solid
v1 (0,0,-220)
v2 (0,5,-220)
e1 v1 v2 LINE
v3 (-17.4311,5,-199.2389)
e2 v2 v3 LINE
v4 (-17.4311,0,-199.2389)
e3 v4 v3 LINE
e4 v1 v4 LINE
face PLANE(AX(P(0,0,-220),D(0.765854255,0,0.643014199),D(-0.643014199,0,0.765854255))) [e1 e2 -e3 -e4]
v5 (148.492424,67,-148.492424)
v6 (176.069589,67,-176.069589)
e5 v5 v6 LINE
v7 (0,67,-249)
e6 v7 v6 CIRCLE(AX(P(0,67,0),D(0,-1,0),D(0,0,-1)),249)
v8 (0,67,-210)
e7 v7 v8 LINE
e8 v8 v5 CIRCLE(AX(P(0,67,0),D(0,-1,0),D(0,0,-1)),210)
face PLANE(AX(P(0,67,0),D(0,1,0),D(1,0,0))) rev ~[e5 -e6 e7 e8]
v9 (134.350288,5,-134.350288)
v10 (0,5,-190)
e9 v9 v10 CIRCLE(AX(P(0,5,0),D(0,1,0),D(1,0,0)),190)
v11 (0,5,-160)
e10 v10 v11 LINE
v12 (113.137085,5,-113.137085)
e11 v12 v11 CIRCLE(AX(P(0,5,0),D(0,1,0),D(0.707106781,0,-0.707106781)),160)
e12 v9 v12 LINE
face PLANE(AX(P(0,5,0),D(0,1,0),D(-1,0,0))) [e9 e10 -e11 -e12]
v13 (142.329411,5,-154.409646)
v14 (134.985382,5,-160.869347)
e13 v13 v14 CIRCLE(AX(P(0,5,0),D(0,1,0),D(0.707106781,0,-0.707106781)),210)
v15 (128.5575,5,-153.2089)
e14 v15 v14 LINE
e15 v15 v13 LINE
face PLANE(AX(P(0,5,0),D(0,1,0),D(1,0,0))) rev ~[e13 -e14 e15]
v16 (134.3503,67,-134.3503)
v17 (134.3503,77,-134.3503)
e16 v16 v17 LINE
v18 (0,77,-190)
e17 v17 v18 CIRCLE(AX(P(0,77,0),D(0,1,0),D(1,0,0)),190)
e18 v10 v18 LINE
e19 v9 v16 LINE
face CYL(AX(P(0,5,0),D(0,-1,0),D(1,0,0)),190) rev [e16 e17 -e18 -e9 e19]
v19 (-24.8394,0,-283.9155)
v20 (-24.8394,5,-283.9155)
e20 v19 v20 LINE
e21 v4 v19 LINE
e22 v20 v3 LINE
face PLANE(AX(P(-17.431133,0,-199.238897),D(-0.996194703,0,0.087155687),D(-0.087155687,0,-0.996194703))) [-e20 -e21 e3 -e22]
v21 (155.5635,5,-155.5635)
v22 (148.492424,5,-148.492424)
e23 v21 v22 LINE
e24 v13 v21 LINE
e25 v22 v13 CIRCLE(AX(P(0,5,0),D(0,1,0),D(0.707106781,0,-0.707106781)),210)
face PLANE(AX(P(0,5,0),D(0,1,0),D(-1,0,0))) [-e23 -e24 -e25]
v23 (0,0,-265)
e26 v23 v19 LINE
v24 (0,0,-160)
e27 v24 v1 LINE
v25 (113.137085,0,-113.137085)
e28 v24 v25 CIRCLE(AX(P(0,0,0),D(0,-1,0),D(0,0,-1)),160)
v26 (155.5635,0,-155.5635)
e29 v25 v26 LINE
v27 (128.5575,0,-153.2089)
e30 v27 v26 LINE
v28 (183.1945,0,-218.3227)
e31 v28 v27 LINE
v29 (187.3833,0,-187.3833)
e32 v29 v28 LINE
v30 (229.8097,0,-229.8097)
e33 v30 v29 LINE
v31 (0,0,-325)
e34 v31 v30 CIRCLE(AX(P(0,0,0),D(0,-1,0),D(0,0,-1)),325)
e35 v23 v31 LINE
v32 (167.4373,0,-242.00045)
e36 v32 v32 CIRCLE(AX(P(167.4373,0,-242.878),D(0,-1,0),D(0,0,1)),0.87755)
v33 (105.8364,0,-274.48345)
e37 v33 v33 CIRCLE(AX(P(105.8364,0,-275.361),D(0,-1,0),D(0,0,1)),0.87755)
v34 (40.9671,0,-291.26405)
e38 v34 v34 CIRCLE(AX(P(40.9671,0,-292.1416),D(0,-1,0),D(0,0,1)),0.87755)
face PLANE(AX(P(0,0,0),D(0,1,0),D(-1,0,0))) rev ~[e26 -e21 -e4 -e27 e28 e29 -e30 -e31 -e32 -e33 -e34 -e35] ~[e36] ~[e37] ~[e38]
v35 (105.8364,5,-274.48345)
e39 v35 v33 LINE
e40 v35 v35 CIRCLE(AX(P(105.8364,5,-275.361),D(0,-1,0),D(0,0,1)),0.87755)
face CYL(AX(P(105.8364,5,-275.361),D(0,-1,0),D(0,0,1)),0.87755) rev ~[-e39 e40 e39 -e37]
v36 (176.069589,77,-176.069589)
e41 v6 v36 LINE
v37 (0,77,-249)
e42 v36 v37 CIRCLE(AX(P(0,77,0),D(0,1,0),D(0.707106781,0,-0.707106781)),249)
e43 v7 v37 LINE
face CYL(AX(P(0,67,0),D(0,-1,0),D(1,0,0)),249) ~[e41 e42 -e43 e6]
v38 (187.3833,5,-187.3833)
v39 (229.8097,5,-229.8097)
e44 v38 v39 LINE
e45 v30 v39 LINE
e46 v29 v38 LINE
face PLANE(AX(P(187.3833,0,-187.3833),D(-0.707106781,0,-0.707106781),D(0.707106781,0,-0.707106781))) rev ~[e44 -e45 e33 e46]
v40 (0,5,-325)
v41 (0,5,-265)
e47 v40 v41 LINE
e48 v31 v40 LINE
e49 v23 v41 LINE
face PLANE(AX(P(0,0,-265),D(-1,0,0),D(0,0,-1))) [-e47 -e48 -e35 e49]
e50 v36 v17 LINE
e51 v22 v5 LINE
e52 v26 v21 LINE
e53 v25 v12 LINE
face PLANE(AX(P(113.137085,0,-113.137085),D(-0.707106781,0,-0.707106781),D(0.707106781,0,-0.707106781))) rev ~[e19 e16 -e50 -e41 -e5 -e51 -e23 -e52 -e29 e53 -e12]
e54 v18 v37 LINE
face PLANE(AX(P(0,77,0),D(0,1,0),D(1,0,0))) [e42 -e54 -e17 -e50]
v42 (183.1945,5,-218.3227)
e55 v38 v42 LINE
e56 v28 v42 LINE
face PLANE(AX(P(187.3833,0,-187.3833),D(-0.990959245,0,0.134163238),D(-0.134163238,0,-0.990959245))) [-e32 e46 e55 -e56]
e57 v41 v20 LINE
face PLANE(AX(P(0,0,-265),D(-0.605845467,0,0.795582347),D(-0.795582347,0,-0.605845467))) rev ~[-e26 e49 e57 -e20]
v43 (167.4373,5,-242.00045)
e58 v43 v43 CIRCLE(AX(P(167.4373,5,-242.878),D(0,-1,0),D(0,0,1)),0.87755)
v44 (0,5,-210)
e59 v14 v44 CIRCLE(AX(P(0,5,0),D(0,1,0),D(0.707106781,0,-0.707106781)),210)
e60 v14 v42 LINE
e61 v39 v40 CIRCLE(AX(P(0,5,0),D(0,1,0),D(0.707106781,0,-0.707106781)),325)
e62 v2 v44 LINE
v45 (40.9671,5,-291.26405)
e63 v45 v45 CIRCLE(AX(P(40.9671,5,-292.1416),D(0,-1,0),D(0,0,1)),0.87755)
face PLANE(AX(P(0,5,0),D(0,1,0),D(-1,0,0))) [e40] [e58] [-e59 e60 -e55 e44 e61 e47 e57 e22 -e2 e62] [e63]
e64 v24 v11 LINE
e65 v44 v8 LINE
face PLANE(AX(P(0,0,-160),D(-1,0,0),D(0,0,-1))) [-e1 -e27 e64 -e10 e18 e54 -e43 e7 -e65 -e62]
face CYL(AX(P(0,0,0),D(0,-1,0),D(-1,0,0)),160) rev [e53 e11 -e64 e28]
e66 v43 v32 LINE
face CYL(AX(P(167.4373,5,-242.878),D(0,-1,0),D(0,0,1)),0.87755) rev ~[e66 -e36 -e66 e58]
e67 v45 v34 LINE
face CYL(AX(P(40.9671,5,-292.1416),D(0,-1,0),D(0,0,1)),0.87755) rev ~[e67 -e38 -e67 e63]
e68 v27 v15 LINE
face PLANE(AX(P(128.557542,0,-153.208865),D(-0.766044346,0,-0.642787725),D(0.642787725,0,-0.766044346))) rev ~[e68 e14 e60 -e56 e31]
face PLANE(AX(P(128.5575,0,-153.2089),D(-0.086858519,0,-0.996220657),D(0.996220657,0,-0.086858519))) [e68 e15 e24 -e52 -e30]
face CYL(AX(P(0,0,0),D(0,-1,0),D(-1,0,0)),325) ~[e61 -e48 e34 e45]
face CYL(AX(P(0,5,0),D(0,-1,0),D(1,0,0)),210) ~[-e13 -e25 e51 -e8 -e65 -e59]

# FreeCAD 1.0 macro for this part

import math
import FreeCAD as App
import Part
import Sketcher
Q = App.Units.Quantity

doc = App.newDocument("Part")
body = doc.addObject("PartDesign::Body", "Body")

sketch1 = doc.addObject("Sketcher::SketchObject", "Sketch")
body.addObject(sketch1)
sketch1.AttachmentSupport = (doc.XZ_Plane, [""])
sketch1.MapMode = "FlatFace"
sketch1.addGeometry(Part.LineSegment(App.Vector(113.137085, -113.137085, 0), App.Vector(155.5635, -155.5635, 0)), False)
sketch1.addGeometry(Part.LineSegment(App.Vector(155.5635, -155.5635, 0), App.Vector(128.5575, -153.2089, 0)), False)
sketch1.addGeometry(Part.LineSegment(App.Vector(128.5575, -153.2089, 0), App.Vector(183.1945, -218.3227, 0)), False)
sketch1.addGeometry(Part.LineSegment(App.Vector(183.1945, -218.3227, 0), App.Vector(187.3833, -187.3833, 0)), False)
sketch1.addGeometry(Part.LineSegment(App.Vector(187.3833, -187.3833, 0), App.Vector(229.8097, -229.8097, 0)), False)
sketch1.addGeometry(Part.ArcOfCircle(Part.Circle(App.Vector(0, 0, 0), App.Vector(0, 0, 1), 325), math.radians(-90), math.radians(-45)), False)
sketch1.addGeometry(Part.LineSegment(App.Vector(0, -325, 0), App.Vector(0, -265, 0)), False)
sketch1.addGeometry(Part.LineSegment(App.Vector(0, -265, 0), App.Vector(-24.8394, -283.9155, 0)), False)
sketch1.addGeometry(Part.LineSegment(App.Vector(-24.8394, -283.9155, 0), App.Vector(-17.4311, -199.2389, 0)), False)
sketch1.addGeometry(Part.LineSegment(App.Vector(-17.4311, -199.2389, 0), App.Vector(0, -220, 0)), False)
sketch1.addGeometry(Part.LineSegment(App.Vector(0, -220, 0), App.Vector(0, -160, 0)), False)
sketch1.addGeometry(Part.ArcOfCircle(Part.Circle(App.Vector(0, 0, 0), App.Vector(0, 0, 1), 160), math.radians(-90), math.radians(-45)), False)
sketch1.addConstraint(Sketcher.Constraint("Coincident", 0, 2, 1, 1))
sketch1.addConstraint(Sketcher.Constraint("Coincident", 1, 2, 2, 1))
sketch1.addConstraint(Sketcher.Constraint("Coincident", 2, 2, 3, 1))
sketch1.addConstraint(Sketcher.Constraint("Coincident", 3, 2, 4, 1))
sketch1.addConstraint(Sketcher.Constraint("Coincident", 4, 2, 5, 2))
sketch1.addConstraint(Sketcher.Constraint("Coincident", 5, 1, 6, 1))
sketch1.addConstraint(Sketcher.Constraint("Coincident", 6, 2, 7, 1))
sketch1.addConstraint(Sketcher.Constraint("Coincident", 7, 2, 8, 1))
sketch1.addConstraint(Sketcher.Constraint("Coincident", 8, 2, 9, 1))
sketch1.addConstraint(Sketcher.Constraint("Coincident", 9, 2, 10, 1))
sketch1.addConstraint(Sketcher.Constraint("Coincident", 10, 2, 11, 1))
sketch1.addConstraint(Sketcher.Constraint("Coincident", 11, 2, 0, 1))
sketch1.addConstraint(Sketcher.Constraint("Vertical", 6))
sketch1.addConstraint(Sketcher.Constraint("Vertical", 10))
sketch1.addConstraint(Sketcher.Constraint("Coincident", 5, 3, -1, 1))
sketch1.addConstraint(Sketcher.Constraint("Coincident", 11, 3, -1, 1))
sketch1.addConstraint(Sketcher.Constraint("PointOnObject", 6, 2, -2))
sketch1.addConstraint(Sketcher.Constraint("PointOnObject", 9, 2, -2))
sketch1.addConstraint(Sketcher.Constraint("Radius", 5, 325.0))
sketch1.addConstraint(Sketcher.Constraint("Radius", 11, 160.0))
sketch1.addConstraint(Sketcher.Constraint("DistanceY", 6, 2, 9, 2, 45.0))
sketch1.addConstraint(Sketcher.Constraint("DistanceY", 6, 1, 6, 2, 60.0))
sketch1.addConstraint(Sketcher.Constraint("Distance", 0, 60.0))
sketch1.addConstraint(Sketcher.Constraint("Distance", 2, 85.0))
sketch1.addConstraint(Sketcher.Constraint("Distance", 4, 60.0))
sketch1.addConstraint(Sketcher.Constraint("Distance", 8, 85.0))
sketch1.addConstraint(Sketcher.Constraint("DistanceY", 8, 2, 1, 2, 46.03))
sketch1.addConstraint(Sketcher.Constraint("DistanceY", 1, 2, -1, 1, 153.209))
sketch1.addConstraint(Sketcher.Constraint("DistanceX", 8, 2, -1, 1, 17.431))
sketch1.addConstraint(Sketcher.Constraint("DistanceX", -1, 1, 11, 2, 113.137))
sketch1.addConstraint(Sketcher.Constraint("DistanceX", 1, 2, 0, 2, 27.006))
sketch1.addConstraint(Sketcher.Constraint("DistanceX", 0, 2, 2, 2, 27.631))
sketch1.addConstraint(Sketcher.Constraint("DistanceY", 4, 2, 2, 2, 11.487))
sketch1.addConstraint(Sketcher.Constraint("DistanceX", 7, 2, 1, 2, 153.397))
sketch1.addConstraint(Sketcher.Constraint("DistanceY", 7, 2, 0, 2, 128.352))
sketch1.addConstraint(Sketcher.Constraint("Distance", 3, 31.2217))
pad1 = doc.addObject("PartDesign::Pad", "Pad")
body.addObject(pad1)
pad1.Profile = sketch1
pad1.Length = 5
pad1.Reversed = True

sketch2 = doc.addObject("Sketcher::SketchObject", "Sketch001")
body.addObject(sketch2)
sketch2.AttachmentSupport = (doc.XZ_Plane, [""])
sketch2.MapMode = "FlatFace"
sketch2.AttachmentOffset = App.Placement(App.Vector(0, 0, -5), App.Rotation())
sketch2.addGeometry(Part.ArcOfCircle(Part.Circle(App.Vector(0, 0, 0), App.Vector(0, 0, 1), 210), math.radians(-90), math.radians(-45)), False)
sketch2.addGeometry(Part.LineSegment(App.Vector(0, -210, 0), App.Vector(0, -190, 0)), False)
sketch2.addGeometry(Part.ArcOfCircle(Part.Circle(App.Vector(0, 0, 0), App.Vector(0, 0, 1), 190), math.radians(-90), math.radians(-45)), False)
sketch2.addGeometry(Part.LineSegment(App.Vector(134, -134, 0), App.Vector(148, -148, 0)), False)
sketch2.addConstraint(Sketcher.Constraint("Coincident", 0, 1, 1, 1))
sketch2.addConstraint(Sketcher.Constraint("Coincident", 1, 2, 2, 1))
sketch2.addConstraint(Sketcher.Constraint("Coincident", 2, 2, 3, 1))
sketch2.addConstraint(Sketcher.Constraint("Coincident", 3, 2, 0, 2))
sketch2.addConstraint(Sketcher.Constraint("Vertical", 1))
sketch2.addConstraint(Sketcher.Constraint("Coincident", 0, 3, -1, 1))
sketch2.addConstraint(Sketcher.Constraint("Coincident", 2, 3, -1, 1))
sketch2.addConstraint(Sketcher.Constraint("PointOnObject", 0, 1, -2))
sketch2.addConstraint(Sketcher.Constraint("Radius", 0, 210.0))
sketch2.addConstraint(Sketcher.Constraint("DistanceY", 1, 1, 1, 2, 20.0))
sketch2.addConstraint(Sketcher.Constraint("Angle", 3, Q("-45 deg")))
sketch2.addConstraint(Sketcher.Constraint("DistanceX", -1, 1, 2, 2, 134.3503))
pad2 = doc.addObject("PartDesign::Pad", "Pad001")
body.addObject(pad2)
pad2.Profile = sketch2
pad2.Length = 62
pad2.Reversed = True

sketch3 = doc.addObject("Sketcher::SketchObject", "Sketch002")
body.addObject(sketch3)
sketch3.AttachmentSupport = (doc.XZ_Plane, [""])
sketch3.MapMode = "FlatFace"
sketch3.AttachmentOffset = App.Placement(App.Vector(0, 0, -67), App.Rotation())
sketch3.addGeometry(Part.ArcOfCircle(Part.Circle(App.Vector(0, 0, 0), App.Vector(0, 0, 1), 190), math.radians(-90), math.radians(-45)), False)
sketch3.addGeometry(Part.LineSegment(App.Vector(134, -134, 0), App.Vector(176, -176, 0)), False)
sketch3.addGeometry(Part.ArcOfCircle(Part.Circle(App.Vector(0, 0, 0), App.Vector(0, 0, 1), 249), math.radians(-90), math.radians(-45)), False)
sketch3.addGeometry(Part.LineSegment(App.Vector(0, -249, 0), App.Vector(0, -190, 0)), False)
sketch3.addConstraint(Sketcher.Constraint("Coincident", 0, 2, 1, 1))
sketch3.addConstraint(Sketcher.Constraint("Coincident", 1, 2, 2, 2))
sketch3.addConstraint(Sketcher.Constraint("Coincident", 2, 1, 3, 1))
sketch3.addConstraint(Sketcher.Constraint("Coincident", 3, 2, 0, 1))
sketch3.addConstraint(Sketcher.Constraint("Vertical", 3))
sketch3.addConstraint(Sketcher.Constraint("Coincident", 0, 3, -1, 1))
sketch3.addConstraint(Sketcher.Constraint("Coincident", 2, 3, -1, 1))
sketch3.addConstraint(Sketcher.Constraint("PointOnObject", 2, 1, -2))
sketch3.addConstraint(Sketcher.Constraint("DistanceY", 3, 1, 3, 2, 59.0))
sketch3.addConstraint(Sketcher.Constraint("Radius", 0, 190.0))
sketch3.addConstraint(Sketcher.Constraint("Angle", 1, Q("-45 deg")))
sketch3.addConstraint(Sketcher.Constraint("DistanceX", -1, 1, 0, 2, 134.3503))
pad3 = doc.addObject("PartDesign::Pad", "Pad002")
body.addObject(pad3)
pad3.Profile = sketch3
pad3.Length = 10
pad3.Reversed = True

sketch4 = doc.addObject("Sketcher::SketchObject", "Sketch003")
body.addObject(sketch4)
sketch4.AttachmentSupport = (doc.XZ_Plane, [""])
sketch4.MapMode = "FlatFace"
sketch4.AttachmentOffset = App.Placement(App.Vector(0, 0, -5), App.Rotation())
sketch4.addGeometry(Part.Circle(App.Vector(41, -292.1, 0), App.Vector(0, 0, 1), 0.9), False)
sketch4.addGeometry(Part.Circle(App.Vector(167.4, -242.9, 0), App.Vector(0, 0, 1), 0.9), False)
sketch4.addGeometry(Part.Circle(App.Vector(105.8, -275.4, 0), App.Vector(0, 0, 1), 0.9), False)
sketch4.addConstraint(Sketcher.Constraint("Equal", 0, 1))
sketch4.addConstraint(Sketcher.Constraint("Equal", 1, 2))
sketch4.addConstraint(Sketcher.Constraint("Diameter", 0, 1.755))
sketch4.addConstraint(Sketcher.Constraint("DistanceX", -1, 1, 0, 3, 40.967))
sketch4.addConstraint(Sketcher.Constraint("DistanceY", 1, 3, -1, 1, 242.878))
sketch4.addConstraint(Sketcher.Constraint("DistanceY", 2, 3, -1, 1, 275.361))
sketch4.addConstraint(Sketcher.Constraint("DistanceX", 2, 3, 1, 3, 61.601))
sketch4.addConstraint(Sketcher.Constraint("DistanceY", 0, 3, -1, 1, 292.1416))
sketch4.addConstraint(Sketcher.Constraint("DistanceX", -1, 1, 1, 3, 167.4373))
doc.recompute()
hole = doc.addObject("PartDesign::Hole", "Hole")
body.addObject(hole)
hole.Profile = sketch4
hole.ThreadType = "None"
hole.Diameter = 1.7551
hole.DepthType = "ThroughAll"
hole.Reversed = True

doc.recompute()
